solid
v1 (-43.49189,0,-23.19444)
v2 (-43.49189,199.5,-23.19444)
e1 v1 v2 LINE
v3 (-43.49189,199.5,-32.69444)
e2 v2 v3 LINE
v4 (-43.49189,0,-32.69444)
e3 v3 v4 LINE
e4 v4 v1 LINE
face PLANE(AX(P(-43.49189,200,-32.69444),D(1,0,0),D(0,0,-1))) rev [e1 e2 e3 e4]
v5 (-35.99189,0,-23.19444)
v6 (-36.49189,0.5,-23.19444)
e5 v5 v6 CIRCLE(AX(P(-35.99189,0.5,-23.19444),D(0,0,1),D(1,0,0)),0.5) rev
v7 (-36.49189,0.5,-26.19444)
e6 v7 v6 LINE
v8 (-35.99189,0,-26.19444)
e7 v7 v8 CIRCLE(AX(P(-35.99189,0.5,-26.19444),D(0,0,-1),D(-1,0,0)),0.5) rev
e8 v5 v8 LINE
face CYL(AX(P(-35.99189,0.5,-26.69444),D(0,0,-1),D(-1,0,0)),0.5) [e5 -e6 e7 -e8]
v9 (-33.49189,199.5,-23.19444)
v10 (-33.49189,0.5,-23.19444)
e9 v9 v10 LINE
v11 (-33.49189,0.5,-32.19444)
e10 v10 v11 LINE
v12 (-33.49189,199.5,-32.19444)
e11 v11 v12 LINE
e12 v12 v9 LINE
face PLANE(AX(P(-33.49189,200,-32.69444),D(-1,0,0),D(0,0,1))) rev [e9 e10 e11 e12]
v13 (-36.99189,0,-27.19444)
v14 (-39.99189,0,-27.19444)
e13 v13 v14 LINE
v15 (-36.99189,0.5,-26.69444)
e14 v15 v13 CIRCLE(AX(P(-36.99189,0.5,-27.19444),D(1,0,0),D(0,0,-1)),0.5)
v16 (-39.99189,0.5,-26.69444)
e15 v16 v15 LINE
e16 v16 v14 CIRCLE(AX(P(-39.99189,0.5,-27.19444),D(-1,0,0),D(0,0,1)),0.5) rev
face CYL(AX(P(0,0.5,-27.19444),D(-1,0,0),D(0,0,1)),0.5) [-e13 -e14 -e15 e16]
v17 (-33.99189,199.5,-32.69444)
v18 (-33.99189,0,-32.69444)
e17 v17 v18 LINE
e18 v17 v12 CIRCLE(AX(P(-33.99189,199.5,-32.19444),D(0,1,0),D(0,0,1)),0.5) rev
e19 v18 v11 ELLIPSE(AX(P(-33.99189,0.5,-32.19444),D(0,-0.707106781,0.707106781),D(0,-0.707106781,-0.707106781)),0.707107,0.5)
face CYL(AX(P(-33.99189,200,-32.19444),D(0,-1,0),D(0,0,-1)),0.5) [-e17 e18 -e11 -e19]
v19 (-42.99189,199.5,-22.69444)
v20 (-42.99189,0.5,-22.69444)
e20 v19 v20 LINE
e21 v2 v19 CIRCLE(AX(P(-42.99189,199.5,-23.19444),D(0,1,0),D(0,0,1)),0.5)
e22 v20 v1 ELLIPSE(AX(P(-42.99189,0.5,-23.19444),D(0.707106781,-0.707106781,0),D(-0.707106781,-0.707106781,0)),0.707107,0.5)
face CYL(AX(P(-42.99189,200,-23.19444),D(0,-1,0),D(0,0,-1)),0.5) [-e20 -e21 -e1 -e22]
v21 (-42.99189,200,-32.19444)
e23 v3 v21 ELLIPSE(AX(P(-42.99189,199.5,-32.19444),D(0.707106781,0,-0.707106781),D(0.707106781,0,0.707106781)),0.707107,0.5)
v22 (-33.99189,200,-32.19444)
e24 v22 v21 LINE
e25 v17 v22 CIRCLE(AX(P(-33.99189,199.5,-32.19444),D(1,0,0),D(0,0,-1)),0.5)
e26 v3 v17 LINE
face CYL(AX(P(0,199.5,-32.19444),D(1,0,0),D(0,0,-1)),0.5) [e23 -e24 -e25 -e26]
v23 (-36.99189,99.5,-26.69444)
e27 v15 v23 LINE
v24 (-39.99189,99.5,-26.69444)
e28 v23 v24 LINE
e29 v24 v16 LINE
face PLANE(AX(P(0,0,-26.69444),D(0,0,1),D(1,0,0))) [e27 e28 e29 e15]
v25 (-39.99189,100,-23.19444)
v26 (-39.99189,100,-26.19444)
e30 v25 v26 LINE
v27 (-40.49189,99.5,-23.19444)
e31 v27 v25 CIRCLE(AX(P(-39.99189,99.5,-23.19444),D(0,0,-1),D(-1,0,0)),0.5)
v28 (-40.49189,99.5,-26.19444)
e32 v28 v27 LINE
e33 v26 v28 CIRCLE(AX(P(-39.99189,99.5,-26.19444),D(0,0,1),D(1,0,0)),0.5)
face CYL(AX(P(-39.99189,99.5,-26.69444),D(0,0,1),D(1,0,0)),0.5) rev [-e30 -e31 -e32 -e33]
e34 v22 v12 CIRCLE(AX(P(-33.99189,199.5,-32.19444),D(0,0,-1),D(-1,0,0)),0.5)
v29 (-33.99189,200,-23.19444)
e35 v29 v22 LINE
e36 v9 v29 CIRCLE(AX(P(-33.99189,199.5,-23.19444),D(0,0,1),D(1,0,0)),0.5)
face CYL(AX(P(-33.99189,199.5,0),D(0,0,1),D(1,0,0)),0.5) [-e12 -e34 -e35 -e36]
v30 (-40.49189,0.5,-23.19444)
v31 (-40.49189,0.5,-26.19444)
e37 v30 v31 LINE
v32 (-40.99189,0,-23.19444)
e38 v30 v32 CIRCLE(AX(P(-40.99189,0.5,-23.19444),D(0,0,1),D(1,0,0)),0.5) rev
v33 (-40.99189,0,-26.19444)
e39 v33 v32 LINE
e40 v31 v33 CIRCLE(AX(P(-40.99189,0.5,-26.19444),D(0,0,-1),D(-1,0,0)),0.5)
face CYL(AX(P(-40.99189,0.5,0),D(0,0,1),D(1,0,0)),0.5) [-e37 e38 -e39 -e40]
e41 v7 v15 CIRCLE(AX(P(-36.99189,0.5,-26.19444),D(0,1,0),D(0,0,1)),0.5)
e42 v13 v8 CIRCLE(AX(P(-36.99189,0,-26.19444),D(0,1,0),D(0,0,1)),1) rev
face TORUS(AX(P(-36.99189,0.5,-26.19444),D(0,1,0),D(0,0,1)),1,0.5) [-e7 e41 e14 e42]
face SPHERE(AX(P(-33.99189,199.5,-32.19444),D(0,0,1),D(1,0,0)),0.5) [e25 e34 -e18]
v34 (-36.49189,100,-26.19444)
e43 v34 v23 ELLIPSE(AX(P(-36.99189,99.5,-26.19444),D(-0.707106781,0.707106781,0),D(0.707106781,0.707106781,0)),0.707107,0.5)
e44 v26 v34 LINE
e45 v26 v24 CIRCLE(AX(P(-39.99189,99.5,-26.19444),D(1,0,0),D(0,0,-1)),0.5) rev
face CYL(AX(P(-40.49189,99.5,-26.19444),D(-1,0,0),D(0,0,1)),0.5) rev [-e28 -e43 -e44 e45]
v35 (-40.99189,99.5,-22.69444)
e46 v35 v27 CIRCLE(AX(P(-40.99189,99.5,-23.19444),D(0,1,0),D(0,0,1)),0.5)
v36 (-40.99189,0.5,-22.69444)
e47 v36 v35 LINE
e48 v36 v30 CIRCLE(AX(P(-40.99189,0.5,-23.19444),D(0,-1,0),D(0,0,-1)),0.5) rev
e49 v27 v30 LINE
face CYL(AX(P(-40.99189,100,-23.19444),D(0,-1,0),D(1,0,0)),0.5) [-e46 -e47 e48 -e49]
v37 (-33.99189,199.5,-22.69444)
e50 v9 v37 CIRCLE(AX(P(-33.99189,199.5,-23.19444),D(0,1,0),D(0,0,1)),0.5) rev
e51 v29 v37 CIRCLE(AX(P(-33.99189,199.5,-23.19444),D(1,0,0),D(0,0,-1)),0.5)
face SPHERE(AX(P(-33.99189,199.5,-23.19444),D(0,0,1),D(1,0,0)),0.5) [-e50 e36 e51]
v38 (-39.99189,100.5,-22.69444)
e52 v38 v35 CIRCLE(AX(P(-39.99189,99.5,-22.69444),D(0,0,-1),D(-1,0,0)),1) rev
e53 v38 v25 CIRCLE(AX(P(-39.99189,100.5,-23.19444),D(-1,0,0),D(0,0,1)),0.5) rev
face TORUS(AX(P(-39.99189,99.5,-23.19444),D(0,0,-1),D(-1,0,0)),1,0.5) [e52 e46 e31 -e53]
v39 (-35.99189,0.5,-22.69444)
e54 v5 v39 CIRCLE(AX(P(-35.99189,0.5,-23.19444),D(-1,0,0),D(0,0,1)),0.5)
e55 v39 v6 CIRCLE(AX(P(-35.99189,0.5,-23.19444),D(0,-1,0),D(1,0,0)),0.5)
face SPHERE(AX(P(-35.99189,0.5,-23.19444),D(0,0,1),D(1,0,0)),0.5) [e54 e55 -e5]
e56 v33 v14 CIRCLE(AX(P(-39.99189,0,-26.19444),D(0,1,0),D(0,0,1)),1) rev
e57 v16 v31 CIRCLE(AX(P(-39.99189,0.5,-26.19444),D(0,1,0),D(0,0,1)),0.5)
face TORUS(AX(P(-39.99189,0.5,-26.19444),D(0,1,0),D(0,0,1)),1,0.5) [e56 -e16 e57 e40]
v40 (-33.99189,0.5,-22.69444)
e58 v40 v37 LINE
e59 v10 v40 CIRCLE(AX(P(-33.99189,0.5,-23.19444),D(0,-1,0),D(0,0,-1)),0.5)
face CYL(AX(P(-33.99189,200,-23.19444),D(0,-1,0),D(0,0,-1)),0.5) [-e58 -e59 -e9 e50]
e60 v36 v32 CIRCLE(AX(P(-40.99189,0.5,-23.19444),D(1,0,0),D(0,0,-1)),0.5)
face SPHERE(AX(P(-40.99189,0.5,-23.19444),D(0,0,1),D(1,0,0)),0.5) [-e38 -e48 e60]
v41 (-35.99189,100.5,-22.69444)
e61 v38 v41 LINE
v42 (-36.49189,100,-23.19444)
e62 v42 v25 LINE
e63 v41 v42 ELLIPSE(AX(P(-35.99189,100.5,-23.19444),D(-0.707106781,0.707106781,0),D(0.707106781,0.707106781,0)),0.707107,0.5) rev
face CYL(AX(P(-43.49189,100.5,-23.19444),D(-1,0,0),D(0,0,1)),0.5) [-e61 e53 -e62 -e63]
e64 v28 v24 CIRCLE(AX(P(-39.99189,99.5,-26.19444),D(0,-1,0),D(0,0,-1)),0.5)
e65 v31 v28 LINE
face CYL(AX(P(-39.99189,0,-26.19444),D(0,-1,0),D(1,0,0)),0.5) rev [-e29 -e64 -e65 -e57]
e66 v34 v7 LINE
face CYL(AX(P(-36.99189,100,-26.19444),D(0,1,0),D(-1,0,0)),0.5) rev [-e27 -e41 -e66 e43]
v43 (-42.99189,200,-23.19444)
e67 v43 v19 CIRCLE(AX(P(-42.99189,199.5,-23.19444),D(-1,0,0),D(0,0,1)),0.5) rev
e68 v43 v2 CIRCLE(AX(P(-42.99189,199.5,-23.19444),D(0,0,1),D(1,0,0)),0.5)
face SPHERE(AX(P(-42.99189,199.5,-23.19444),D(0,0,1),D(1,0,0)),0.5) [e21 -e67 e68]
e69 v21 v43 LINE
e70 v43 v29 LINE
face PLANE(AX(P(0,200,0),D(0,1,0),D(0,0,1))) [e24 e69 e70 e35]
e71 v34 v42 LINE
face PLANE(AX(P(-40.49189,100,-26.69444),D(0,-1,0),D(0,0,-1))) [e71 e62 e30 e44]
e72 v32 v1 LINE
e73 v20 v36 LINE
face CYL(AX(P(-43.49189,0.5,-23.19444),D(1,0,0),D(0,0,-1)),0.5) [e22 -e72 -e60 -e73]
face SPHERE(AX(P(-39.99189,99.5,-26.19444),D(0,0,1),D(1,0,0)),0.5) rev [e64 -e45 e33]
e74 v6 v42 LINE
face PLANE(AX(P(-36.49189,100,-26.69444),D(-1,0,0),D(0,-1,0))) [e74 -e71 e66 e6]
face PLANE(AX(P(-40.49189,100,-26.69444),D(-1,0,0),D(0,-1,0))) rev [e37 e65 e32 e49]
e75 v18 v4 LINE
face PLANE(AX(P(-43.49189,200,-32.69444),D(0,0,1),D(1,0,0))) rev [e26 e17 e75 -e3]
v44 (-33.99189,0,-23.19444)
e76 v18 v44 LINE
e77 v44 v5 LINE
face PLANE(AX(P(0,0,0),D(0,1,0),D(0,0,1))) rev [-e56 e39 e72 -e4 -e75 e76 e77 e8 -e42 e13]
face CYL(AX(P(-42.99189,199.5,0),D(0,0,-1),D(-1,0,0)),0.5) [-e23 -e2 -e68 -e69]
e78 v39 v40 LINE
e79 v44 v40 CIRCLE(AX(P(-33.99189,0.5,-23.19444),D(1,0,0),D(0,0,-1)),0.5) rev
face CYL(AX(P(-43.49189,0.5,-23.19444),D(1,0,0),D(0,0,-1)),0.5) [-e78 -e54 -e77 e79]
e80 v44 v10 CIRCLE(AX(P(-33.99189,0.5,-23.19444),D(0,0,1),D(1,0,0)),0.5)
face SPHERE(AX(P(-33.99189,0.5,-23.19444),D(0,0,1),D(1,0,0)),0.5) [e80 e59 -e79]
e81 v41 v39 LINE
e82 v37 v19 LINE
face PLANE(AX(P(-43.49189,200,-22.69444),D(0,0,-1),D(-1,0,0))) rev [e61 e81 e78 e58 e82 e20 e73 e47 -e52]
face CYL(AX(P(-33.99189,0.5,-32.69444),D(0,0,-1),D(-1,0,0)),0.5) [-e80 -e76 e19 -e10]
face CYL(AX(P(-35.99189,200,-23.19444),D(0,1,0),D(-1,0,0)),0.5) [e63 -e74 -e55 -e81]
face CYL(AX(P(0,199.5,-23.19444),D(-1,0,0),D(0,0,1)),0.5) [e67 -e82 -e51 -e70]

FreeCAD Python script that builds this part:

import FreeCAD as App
import Part
import Sketcher
from FreeCAD import Vector


def edges_at(feature, points):
    """Names of the edges that pass closest to the given points."""
    edges = feature.Shape.Edges
    near = lambda p: min(range(len(edges)), key=lambda i: edges[i].distToShape(Part.Vertex(*p))[0])
    return sorted({f"Edge{near(p) + 1}" for p in points})


def add_polygon(sketch, points):
    """Adds a closed chain of lines whose ends are joined by coincident constraints."""
    first, n = sketch.GeometryCount, len(points)
    for a, b in zip(points, points[1:] + points[:1]):
        sketch.addGeometry(Part.LineSegment(App.Vector(*a, 0), App.Vector(*b, 0)), False)
    for i in range(n):
        sketch.addConstraint(Sketcher.Constraint("Coincident", first + i, 2, first + (i + 1) % n, 1))

doc = App.newDocument("Part")
params = doc.addObject("Spreadsheet::Sheet", "Params")
for row, (alias, value) in enumerate([
    ("sketch1_width", "10 mm"),
    ("pad1_length", "200 mm"),
    ("sketch2_width", "4 mm"),
    ("sketch2_height", "100 mm"),
    ("pocket1_length", "4 mm"),
    ("fillet_radius", "0.5 mm"),
], start=1):
    params.set(f"A{row}", alias)
    params.set(f"B{row}", "=" + value)
    params.setAlias(f"B{row}", alias)

body = doc.addObject("PartDesign::Body", "Body")

sketch1 = body.newObject("Sketcher::SketchObject", "Sketch")
sketch1.AttachmentSupport = (doc.getObject("XZ_Plane"), [""])
sketch1.MapMode = "FlatFace"
add_polygon(sketch1, [(-43, -33), (-43, -23), (-33, -23), (-33, -33)])
sketch1.addConstraint([
    Sketcher.Constraint("Vertical", 0),
    Sketcher.Constraint("Horizontal", 1),
    Sketcher.Constraint("Vertical", 2),
    Sketcher.Constraint("Horizontal", 3),
    Sketcher.Constraint("Equal", 3, 0),
    Sketcher.Constraint("DistanceX", 1, 1, 1, 2, 10.0),
    Sketcher.Constraint("DistanceX", 0, 2, -1, 1, 43.49189),
    Sketcher.Constraint("DistanceY", 0, 2, -1, 1, 22.69444),
])
sketch1.setExpression("Constraints[9]", "Params.sketch1_width")
pad1 = body.newObject("PartDesign::Pad", "Pad")
pad1.Profile = sketch1
pad1.setExpression("Length", "Params.pad1_length")
pad1.Reversed = True

sketch2 = body.newObject("Sketcher::SketchObject", "Sketch001")
sketch2.AttachmentSupport = (doc.getObject("XY_Plane"), [""])
sketch2.MapMode = "FlatFace"
sketch2.AttachmentOffset = App.Placement(Vector(0, 0, -22.69444), App.Rotation())
add_polygon(sketch2, [(-40.5, 100), (-40.5, 0), (-36.5, 0), (-36.5, 100)])
sketch2.addConstraint([
    Sketcher.Constraint("Vertical", 0),
    Sketcher.Constraint("Horizontal", 1),
    Sketcher.Constraint("Vertical", 2),
    Sketcher.Constraint("Horizontal", 3),
    Sketcher.Constraint("PointOnObject", 0, 2, -1),
    Sketcher.Constraint("DistanceX", 1, 1, 1, 2, 4.0),
    Sketcher.Constraint("DistanceY", 0, 2, 0, 1, 100.0),
    Sketcher.Constraint("DistanceX", 0, 2, -1, 1, 40.49189),
])
sketch2.setExpression("Constraints[9]", "Params.sketch2_width")
sketch2.setExpression("Constraints[10]", "Params.sketch2_height")
pocket1 = body.newObject("PartDesign::Pocket", "Pocket")
pocket1.Profile = sketch2
pocket1.setExpression("Length", "Params.pocket1_length")
doc.recompute()

fillet = body.newObject("PartDesign::Fillet", "Fillet")
fillet.Base = (pocket1, edges_at(pocket1, [
    (-33.492, 200, -27.694),
    (-38.492, 200, -32.694),
    (-34.992, 0, -22.694),
    (-40.492, 50, -26.694),
    (-40.492, 0, -24.694),
    (-38.492, 100, -22.694),
    (-40.492, 100, -24.694),
    (-36.492, 50, -22.694),
    (-38.492, 0, -26.694),
    (-36.492, 0, -24.694),
    (-38.492, 100, -26.694),
    (-36.492, 50, -26.694),
    (-40.492, 50, -22.694),
    (-43.492, 200, -27.694),
    (-33.492, 0, -27.694),
    (-41.992, 0, -22.694),
    (-38.492, 200, -22.694),
    (-33.492, 100, -32.694),
    (-33.492, 100, -22.694),
    (-43.492, 100, -22.694),
]))
fillet.setExpression("Radius", "Params.fillet_radius")

doc.recompute()
